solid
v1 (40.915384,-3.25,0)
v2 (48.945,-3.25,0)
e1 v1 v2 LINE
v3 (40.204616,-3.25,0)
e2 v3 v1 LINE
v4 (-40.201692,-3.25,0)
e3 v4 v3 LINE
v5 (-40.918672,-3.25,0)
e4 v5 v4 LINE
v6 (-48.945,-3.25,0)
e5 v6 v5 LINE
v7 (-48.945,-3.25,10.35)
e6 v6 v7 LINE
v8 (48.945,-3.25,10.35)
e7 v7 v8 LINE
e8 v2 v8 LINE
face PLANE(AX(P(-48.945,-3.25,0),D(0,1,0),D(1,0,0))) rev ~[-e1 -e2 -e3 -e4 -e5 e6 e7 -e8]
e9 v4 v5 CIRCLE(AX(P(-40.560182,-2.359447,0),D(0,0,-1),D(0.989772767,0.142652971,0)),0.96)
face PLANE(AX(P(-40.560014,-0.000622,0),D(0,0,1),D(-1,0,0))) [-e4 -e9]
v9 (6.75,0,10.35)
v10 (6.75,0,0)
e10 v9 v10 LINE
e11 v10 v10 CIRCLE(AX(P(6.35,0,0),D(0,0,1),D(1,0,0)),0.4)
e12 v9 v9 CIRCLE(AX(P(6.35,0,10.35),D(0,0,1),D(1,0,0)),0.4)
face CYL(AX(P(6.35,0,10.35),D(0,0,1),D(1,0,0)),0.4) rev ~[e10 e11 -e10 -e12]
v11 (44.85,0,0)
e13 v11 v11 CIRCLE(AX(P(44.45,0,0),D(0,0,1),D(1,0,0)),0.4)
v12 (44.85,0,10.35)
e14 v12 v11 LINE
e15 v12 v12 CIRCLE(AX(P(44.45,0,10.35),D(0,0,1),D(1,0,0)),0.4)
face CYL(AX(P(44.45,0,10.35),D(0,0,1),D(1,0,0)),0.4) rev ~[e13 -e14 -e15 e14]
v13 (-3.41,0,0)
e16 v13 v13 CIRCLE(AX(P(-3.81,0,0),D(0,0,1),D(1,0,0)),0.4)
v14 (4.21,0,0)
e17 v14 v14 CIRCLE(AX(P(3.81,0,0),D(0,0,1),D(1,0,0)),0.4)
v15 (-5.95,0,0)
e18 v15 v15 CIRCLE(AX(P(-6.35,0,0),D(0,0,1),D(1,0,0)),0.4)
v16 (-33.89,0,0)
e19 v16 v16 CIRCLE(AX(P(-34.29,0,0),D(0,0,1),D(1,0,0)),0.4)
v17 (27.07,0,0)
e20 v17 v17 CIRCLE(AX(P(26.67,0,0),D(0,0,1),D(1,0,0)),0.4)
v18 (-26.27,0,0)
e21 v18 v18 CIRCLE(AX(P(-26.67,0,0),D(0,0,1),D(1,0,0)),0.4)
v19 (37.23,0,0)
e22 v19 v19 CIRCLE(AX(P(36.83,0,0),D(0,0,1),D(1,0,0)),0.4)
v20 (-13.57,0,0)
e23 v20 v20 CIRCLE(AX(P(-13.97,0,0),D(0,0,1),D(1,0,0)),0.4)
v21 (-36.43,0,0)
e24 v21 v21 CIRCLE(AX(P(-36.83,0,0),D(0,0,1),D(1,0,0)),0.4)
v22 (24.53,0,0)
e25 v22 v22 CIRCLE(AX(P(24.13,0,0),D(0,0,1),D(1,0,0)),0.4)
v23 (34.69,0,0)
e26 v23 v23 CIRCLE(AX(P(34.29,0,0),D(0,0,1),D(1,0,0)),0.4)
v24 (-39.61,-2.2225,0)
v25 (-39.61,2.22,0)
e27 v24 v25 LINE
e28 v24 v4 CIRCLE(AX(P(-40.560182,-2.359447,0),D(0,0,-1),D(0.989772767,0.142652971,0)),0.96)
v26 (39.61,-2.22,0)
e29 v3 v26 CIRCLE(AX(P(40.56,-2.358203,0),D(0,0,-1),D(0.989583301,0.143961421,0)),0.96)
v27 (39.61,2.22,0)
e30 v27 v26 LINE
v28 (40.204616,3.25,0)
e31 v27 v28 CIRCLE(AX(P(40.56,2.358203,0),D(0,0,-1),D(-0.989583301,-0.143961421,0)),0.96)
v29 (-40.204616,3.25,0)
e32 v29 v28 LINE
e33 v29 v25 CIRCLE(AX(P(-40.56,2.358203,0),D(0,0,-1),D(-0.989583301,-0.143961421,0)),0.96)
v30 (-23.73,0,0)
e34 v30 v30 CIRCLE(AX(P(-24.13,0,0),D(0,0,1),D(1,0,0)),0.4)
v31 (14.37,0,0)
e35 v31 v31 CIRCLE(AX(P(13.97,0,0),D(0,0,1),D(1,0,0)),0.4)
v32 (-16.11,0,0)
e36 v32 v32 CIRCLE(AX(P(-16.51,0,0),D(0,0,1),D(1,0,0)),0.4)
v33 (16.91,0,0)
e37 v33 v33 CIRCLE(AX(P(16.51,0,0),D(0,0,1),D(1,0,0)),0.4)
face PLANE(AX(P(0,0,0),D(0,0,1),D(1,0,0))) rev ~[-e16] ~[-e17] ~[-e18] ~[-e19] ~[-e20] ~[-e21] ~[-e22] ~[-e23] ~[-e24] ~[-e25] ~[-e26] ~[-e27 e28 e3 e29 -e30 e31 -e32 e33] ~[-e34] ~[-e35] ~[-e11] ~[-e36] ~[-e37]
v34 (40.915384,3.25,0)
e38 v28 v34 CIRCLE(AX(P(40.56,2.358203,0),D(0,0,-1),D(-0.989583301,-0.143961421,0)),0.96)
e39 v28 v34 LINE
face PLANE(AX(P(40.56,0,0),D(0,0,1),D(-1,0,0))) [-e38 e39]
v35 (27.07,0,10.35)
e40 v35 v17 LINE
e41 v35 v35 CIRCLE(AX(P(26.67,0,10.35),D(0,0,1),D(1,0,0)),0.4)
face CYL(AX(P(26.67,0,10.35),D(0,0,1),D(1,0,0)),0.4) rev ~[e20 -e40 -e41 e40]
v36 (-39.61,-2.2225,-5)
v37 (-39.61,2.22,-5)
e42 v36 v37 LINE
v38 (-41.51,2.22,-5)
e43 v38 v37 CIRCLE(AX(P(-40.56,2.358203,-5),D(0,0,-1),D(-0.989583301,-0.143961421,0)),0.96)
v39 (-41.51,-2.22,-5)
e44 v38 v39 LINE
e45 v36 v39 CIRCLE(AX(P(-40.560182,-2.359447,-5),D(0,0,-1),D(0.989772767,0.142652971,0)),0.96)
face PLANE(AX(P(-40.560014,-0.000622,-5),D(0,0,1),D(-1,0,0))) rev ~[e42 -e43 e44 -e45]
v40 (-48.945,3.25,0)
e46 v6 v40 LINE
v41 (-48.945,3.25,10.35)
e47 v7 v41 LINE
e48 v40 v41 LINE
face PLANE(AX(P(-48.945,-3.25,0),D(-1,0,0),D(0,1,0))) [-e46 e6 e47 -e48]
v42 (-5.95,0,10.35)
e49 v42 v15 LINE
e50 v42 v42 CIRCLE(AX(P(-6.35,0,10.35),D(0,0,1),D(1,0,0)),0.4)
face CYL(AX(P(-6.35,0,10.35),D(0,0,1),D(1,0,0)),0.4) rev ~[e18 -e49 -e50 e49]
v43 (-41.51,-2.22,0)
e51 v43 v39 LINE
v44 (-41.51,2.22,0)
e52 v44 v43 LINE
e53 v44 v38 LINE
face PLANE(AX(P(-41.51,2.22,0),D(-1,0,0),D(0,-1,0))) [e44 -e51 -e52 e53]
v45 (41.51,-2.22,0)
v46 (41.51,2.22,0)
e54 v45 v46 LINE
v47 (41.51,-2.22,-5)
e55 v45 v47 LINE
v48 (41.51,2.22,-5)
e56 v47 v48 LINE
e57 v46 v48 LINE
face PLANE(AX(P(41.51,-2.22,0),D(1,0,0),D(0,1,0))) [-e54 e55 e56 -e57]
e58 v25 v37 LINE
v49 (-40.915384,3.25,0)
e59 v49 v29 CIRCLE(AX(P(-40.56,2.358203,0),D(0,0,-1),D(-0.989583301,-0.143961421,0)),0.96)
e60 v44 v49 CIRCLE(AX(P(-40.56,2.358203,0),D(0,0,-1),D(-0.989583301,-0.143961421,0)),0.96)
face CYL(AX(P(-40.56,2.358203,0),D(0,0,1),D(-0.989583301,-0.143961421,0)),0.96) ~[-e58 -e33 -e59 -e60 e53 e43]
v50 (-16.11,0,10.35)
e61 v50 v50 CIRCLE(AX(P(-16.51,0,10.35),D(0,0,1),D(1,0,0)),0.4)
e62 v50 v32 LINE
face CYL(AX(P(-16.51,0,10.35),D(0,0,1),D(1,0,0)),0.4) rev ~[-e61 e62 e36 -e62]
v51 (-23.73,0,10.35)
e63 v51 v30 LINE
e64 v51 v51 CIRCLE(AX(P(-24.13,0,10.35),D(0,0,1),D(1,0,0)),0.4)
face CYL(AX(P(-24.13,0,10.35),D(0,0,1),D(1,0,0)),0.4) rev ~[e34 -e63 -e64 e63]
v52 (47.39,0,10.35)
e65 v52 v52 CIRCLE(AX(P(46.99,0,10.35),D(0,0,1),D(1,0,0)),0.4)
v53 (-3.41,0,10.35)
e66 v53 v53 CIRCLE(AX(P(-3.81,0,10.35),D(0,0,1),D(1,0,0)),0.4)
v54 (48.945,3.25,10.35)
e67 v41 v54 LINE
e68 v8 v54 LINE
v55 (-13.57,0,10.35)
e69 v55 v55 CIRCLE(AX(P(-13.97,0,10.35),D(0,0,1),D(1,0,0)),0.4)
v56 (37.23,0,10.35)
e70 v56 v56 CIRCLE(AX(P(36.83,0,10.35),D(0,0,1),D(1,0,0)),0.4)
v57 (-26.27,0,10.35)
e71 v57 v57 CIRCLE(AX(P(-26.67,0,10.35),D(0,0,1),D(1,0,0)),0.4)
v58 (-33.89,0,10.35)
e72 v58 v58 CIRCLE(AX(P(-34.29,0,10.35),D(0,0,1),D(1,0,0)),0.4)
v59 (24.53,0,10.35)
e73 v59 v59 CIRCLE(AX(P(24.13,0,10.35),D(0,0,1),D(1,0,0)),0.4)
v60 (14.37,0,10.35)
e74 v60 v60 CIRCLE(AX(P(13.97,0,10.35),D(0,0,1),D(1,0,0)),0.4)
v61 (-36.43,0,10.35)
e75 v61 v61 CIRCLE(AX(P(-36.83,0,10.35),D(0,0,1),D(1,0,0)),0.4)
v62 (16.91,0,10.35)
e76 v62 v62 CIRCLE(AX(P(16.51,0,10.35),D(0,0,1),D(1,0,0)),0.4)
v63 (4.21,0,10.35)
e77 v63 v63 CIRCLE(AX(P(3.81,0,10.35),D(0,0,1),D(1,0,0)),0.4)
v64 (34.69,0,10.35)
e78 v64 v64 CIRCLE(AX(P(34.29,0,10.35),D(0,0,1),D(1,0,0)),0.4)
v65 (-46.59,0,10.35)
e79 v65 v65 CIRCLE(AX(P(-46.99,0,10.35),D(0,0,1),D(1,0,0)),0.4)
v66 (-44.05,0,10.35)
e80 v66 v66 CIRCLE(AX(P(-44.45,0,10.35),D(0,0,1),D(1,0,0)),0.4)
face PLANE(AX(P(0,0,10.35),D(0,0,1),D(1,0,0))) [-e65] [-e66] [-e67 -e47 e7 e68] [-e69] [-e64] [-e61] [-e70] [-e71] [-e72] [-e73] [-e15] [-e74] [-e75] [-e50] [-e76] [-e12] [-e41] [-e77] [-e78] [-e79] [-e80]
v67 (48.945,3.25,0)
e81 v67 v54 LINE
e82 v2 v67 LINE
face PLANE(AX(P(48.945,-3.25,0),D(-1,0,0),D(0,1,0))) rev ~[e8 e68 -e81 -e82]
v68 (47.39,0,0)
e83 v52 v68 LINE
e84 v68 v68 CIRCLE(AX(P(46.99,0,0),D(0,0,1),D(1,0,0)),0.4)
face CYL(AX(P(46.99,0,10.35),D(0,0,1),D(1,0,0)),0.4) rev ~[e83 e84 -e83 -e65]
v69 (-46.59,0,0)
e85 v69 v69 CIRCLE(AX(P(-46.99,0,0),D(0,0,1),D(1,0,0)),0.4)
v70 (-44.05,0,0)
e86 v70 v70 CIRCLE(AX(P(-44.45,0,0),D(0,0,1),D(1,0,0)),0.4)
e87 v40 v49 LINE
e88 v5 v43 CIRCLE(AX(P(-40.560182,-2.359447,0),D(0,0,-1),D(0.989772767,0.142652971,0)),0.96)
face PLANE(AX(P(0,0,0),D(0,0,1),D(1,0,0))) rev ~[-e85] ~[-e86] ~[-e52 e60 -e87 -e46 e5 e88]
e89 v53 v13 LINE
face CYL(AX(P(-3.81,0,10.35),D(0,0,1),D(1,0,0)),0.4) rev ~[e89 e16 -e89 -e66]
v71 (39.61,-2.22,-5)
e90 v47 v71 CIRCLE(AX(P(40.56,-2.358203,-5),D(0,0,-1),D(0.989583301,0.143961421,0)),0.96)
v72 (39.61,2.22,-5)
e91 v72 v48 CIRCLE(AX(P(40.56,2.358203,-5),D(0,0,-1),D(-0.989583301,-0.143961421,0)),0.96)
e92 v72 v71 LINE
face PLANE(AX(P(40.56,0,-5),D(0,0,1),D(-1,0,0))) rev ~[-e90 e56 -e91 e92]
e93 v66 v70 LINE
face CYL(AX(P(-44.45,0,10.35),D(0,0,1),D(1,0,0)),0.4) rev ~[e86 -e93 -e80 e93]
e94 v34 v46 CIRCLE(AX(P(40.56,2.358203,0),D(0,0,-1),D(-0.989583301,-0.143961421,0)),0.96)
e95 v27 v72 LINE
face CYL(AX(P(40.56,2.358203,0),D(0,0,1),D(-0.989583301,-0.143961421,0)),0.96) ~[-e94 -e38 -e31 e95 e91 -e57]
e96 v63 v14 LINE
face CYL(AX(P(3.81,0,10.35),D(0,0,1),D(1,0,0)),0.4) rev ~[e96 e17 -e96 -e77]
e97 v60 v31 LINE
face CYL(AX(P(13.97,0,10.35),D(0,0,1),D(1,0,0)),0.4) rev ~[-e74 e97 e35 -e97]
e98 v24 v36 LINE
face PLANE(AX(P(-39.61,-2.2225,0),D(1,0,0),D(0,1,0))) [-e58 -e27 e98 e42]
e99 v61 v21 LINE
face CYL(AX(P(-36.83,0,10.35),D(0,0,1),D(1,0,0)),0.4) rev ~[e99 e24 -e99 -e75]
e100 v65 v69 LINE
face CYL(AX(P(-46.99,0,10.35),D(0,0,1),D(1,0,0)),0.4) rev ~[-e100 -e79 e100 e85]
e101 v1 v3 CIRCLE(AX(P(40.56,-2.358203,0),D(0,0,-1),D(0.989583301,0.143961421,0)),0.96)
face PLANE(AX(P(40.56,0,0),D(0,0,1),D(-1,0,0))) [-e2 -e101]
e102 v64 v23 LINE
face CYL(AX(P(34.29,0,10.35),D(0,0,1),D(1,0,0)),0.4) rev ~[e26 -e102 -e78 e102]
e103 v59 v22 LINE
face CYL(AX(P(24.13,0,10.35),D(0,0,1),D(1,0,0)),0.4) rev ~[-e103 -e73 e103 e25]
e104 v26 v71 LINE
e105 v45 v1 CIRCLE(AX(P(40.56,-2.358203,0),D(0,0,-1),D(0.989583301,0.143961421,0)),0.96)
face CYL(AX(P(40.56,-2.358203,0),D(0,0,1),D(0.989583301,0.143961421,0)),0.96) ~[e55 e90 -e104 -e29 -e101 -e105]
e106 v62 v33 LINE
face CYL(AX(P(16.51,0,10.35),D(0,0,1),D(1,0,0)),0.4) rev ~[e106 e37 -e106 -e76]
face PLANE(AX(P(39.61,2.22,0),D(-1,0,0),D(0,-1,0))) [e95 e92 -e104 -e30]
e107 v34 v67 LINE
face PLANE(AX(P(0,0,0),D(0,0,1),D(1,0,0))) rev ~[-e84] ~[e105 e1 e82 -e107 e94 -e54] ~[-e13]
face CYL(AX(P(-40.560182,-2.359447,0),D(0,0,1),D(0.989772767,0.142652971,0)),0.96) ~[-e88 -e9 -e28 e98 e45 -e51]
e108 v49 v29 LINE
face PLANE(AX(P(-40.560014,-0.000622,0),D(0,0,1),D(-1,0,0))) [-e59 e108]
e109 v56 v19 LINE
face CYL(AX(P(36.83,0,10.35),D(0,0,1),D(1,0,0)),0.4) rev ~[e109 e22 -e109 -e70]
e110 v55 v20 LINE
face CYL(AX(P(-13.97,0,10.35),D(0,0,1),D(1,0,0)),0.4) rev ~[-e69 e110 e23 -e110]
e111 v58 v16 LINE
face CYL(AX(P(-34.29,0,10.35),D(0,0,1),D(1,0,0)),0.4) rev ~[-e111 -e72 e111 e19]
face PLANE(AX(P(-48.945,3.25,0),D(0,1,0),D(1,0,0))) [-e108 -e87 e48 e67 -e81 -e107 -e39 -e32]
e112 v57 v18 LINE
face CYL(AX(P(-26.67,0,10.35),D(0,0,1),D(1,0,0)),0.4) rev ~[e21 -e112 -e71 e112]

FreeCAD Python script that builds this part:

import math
import FreeCAD as App
import Part
import Sketcher
from FreeCAD import Vector


def add_polygon(sketch, points):
    """Adds a closed chain of lines whose ends are joined by coincident constraints."""
    first, n = sketch.GeometryCount, len(points)
    for a, b in zip(points, points[1:] + points[:1]):
        sketch.addGeometry(Part.LineSegment(App.Vector(*a, 0), App.Vector(*b, 0)), False)
    for i in range(n):
        sketch.addConstraint(Sketcher.Constraint("Coincident", first + i, 2, first + (i + 1) % n, 1))

doc = App.newDocument("Part")
params = doc.addObject("Spreadsheet::Sheet", "Params")
for row, (alias, value) in enumerate([
    ("sketch1_height", "6.5 mm"),
    ("sketch1_width", "97.89 mm"),
    ("pad1_length", "10.35 mm"),
    ("sketch2_diameter", "0.8 mm"),
    ("pocket1_length", "70 mm"),
    ("sketch3_radius", "0.96 mm"),
    ("sketch3_height", "4.44 mm"),
    ("pad2_length", "5 mm"),
], start=1):
    params.set(f"A{row}", alias)
    params.set(f"B{row}", "=" + value)
    params.setAlias(f"B{row}", alias)

body = doc.addObject("PartDesign::Body", "Body")

# Sketch on XY plane
sketch1 = body.newObject("Sketcher::SketchObject", "Sketch")
sketch1.AttachmentSupport = (doc.getObject("XY_Plane"), [""])
sketch1.MapMode = "FlatFace"
add_polygon(sketch1, [(-49, 3), (-49, -3), (49, -3), (49, 3)])  # lines 0-3
sketch1.addConstraint(Sketcher.Constraint("Vertical", 0))
sketch1.addConstraint(Sketcher.Constraint("Horizontal", 1))
sketch1.addConstraint(Sketcher.Constraint("Vertical", 2))
sketch1.addConstraint(Sketcher.Constraint("Horizontal", 3))
sketch1.addConstraint(Sketcher.Constraint("Symmetric", 0, 2, 2, 2, -1, 1))
sketch1.addConstraint(Sketcher.Constraint("DistanceY", 0, 2, 0, 1, 6.5))
sketch1.addConstraint(Sketcher.Constraint("DistanceX", 1, 1, 1, 2, 97.89))
sketch1.setExpression("Constraints[9]", "Params.sketch1_height")
sketch1.setExpression("Constraints[10]", "Params.sketch1_width")
pad1 = body.newObject("PartDesign::Pad", "Pad")
pad1.Profile = sketch1
pad1.setExpression("Length", "Params.pad1_length")

# Sketch on XY plane
sketch2 = body.newObject("Sketcher::SketchObject", "Sketch001")
sketch2.AttachmentSupport = (doc.getObject("XY_Plane"), [""])
sketch2.MapMode = "FlatFace"
sketch2.AttachmentOffset = App.Placement(Vector(0, 0, 10.35), App.Rotation())
sketch2.addGeometry(Part.Circle(Vector(3.81, 0, 0), Vector(0, 0, 1), 0.4), False)
sketch2.addGeometry(Part.Circle(Vector(6.35, 0, 0), Vector(0, 0, 1), 0.4), False)
sketch2.addGeometry(Part.Circle(Vector(-16.51, 0, 0), Vector(0, 0, 1), 0.4), False)
sketch2.addGeometry(Part.Circle(Vector(-13.97, 0, 0), Vector(0, 0, 1), 0.4), False)
sketch2.addGeometry(Part.Circle(Vector(-34.29, 0, 0), Vector(0, 0, 1), 0.4), False)
sketch2.addGeometry(Part.Circle(Vector(-36.83, 0, 0), Vector(0, 0, 1), 0.4), False)
sketch2.addGeometry(Part.Circle(Vector(13.97, 0, 0), Vector(0, 0, 1), 0.4), False)
sketch2.addGeometry(Part.Circle(Vector(16.51, 0, 0), Vector(0, 0, 1), 0.4), False)
sketch2.addGeometry(Part.Circle(Vector(24.13, 0, 0), Vector(0, 0, 1), 0.4), False)
sketch2.addGeometry(Part.Circle(Vector(26.67, 0, 0), Vector(0, 0, 1), 0.4), False)
sketch2.addGeometry(Part.Circle(Vector(34.29, 0, 0), Vector(0, 0, 1), 0.4), False)
sketch2.addGeometry(Part.Circle(Vector(36.83, 0, 0), Vector(0, 0, 1), 0.4), False)
sketch2.addGeometry(Part.Circle(Vector(44.45, 0, 0), Vector(0, 0, 1), 0.4), False)
sketch2.addGeometry(Part.Circle(Vector(46.99, 0, 0), Vector(0, 0, 1), 0.4), False)
sketch2.addGeometry(Part.Circle(Vector(-46.99, 0, 0), Vector(0, 0, 1), 0.4), False)
sketch2.addGeometry(Part.Circle(Vector(-44.45, 0, 0), Vector(0, 0, 1), 0.4), False)
sketch2.addGeometry(Part.Circle(Vector(-26.67, 0, 0), Vector(0, 0, 1), 0.4), False)
sketch2.addGeometry(Part.Circle(Vector(-24.13, 0, 0), Vector(0, 0, 1), 0.4), False)
sketch2.addGeometry(Part.Circle(Vector(-6.35, 0, 0), Vector(0, 0, 1), 0.4), False)
sketch2.addGeometry(Part.Circle(Vector(-3.81, 0, 0), Vector(0, 0, 1), 0.4), False)
sketch2.addConstraint(Sketcher.Constraint("Equal", 0, 1))
sketch2.addConstraint(Sketcher.Constraint("Equal", 1, 2))
sketch2.addConstraint(Sketcher.Constraint("Equal", 2, 3))
sketch2.addConstraint(Sketcher.Constraint("Equal", 3, 4))
sketch2.addConstraint(Sketcher.Constraint("Equal", 4, 5))
sketch2.addConstraint(Sketcher.Constraint("Equal", 5, 6))
sketch2.addConstraint(Sketcher.Constraint("Equal", 6, 7))
sketch2.addConstraint(Sketcher.Constraint("Equal", 7, 8))
sketch2.addConstraint(Sketcher.Constraint("Equal", 8, 9))
sketch2.addConstraint(Sketcher.Constraint("Equal", 9, 10))
sketch2.addConstraint(Sketcher.Constraint("Equal", 10, 11))
sketch2.addConstraint(Sketcher.Constraint("Equal", 11, 12))
sketch2.addConstraint(Sketcher.Constraint("Equal", 12, 13))
sketch2.addConstraint(Sketcher.Constraint("Equal", 13, 14))
sketch2.addConstraint(Sketcher.Constraint("Equal", 14, 15))
sketch2.addConstraint(Sketcher.Constraint("Equal", 15, 16))
sketch2.addConstraint(Sketcher.Constraint("Equal", 16, 17))
sketch2.addConstraint(Sketcher.Constraint("Equal", 17, 18))
sketch2.addConstraint(Sketcher.Constraint("Equal", 18, 19))
sketch2.addConstraint(Sketcher.Constraint("Symmetric", 3, 3, 6, 3, -1, 1))
sketch2.addConstraint(Sketcher.Constraint("Symmetric", 2, 3, 7, 3, -1, 1))
sketch2.addConstraint(Sketcher.Constraint("Symmetric", 4, 3, 10, 3, -1, 1))
sketch2.addConstraint(Sketcher.Constraint("Symmetric", 5, 3, 11, 3, -1, 1))
sketch2.addConstraint(Sketcher.Constraint("Symmetric", 13, 3, 14, 3, -1, 1))
sketch2.addConstraint(Sketcher.Constraint("Symmetric", 12, 3, 15, 3, -1, 1))
sketch2.addConstraint(Sketcher.Constraint("Symmetric", 9, 3, 16, 3, -1, 1))
sketch2.addConstraint(Sketcher.Constraint("Symmetric", 8, 3, 17, 3, -1, 1))
sketch2.addConstraint(Sketcher.Constraint("Symmetric", 1, 3, 18, 3, -1, 1))
sketch2.addConstraint(Sketcher.Constraint("Symmetric", 0, 3, 19, 3, -1, 1))
sketch2.addConstraint(Sketcher.Constraint("PointOnObject", 0, 3, -1))
sketch2.addConstraint(Sketcher.Constraint("PointOnObject", 1, 3, -1))
sketch2.addConstraint(Sketcher.Constraint("PointOnObject", 2, 3, -1))
sketch2.addConstraint(Sketcher.Constraint("PointOnObject", 3, 3, -1))
sketch2.addConstraint(Sketcher.Constraint("PointOnObject", 4, 3, -1))
sketch2.addConstraint(Sketcher.Constraint("PointOnObject", 5, 3, -1))
sketch2.addConstraint(Sketcher.Constraint("PointOnObject", 8, 3, -1))
sketch2.addConstraint(Sketcher.Constraint("PointOnObject", 9, 3, -1))
sketch2.addConstraint(Sketcher.Constraint("PointOnObject", 12, 3, -1))
sketch2.addConstraint(Sketcher.Constraint("PointOnObject", 13, 3, -1))
sketch2.addConstraint(Sketcher.Constraint("Diameter", 0, 0.8))
sketch2.addConstraint(Sketcher.Constraint("DistanceX", 4, 3, 0, 3, 38.1))
sketch2.addConstraint(Sketcher.Constraint("DistanceX", 0, 3, 7, 3, 12.7))
sketch2.addConstraint(Sketcher.Constraint("DistanceX", 3, 3, 8, 3, 38.1))
sketch2.addConstraint(Sketcher.Constraint("DistanceX", 6, 3, 9, 3, 12.7))
sketch2.addConstraint(Sketcher.Constraint("DistanceX", 8, 3, 11, 3, 12.7))
sketch2.addConstraint(Sketcher.Constraint("DistanceX", 10, 3, 13, 3, 12.7))
sketch2.addConstraint(Sketcher.Constraint("DistanceX", 18, 3, 1, 3, 12.7))
sketch2.addConstraint(Sketcher.Constraint("DistanceX", -1, 1, 0, 3, 3.81))
sketch2.addConstraint(Sketcher.Constraint("DistanceX", 3, 3, -1, 1, 13.97))
sketch2.addConstraint(Sketcher.Constraint("DistanceX", -1, 1, 12, 3, 44.45))
sketch2.setExpression("Constraints[39]", "Params.sketch2_diameter")
pocket1 = body.newObject("PartDesign::Pocket", "Pocket")
pocket1.Profile = sketch2
pocket1.setExpression("Length", "Params.pocket1_length")

# Sketch on XY plane
sketch3 = body.newObject("Sketcher::SketchObject", "Sketch002")
sketch3.AttachmentSupport = (doc.getObject("XY_Plane"), [""])
sketch3.MapMode = "FlatFace"
sketch3.addGeometry(Part.LineSegment(Vector(-39.6, 2.2, 0), Vector(-39.6, -2.2, 0)), False)
sketch3.addGeometry(Part.ArcOfCircle(Part.Circle(Vector(-40.6, -2.4, 0), Vector(0, 0, 1), 1), math.radians(172), math.radians(368)), False)
sketch3.addGeometry(Part.LineSegment(Vector(-41.5, -2.2, 0), Vector(-41.5, 2.2, 0)), False)
sketch3.addGeometry(Part.ArcOfCircle(Part.Circle(Vector(-40.6, 2.4, 0), Vector(0, 0, 1), 1), math.radians(-8), math.radians(188)), False)
sketch3.addGeometry(Part.LineSegment(Vector(41.5, 2.2, 0), Vector(41.5, -2.2, 0)), False)
sketch3.addGeometry(Part.ArcOfCircle(Part.Circle(Vector(40.6, -2.4, 0), Vector(0, 0, 1), 1), math.radians(172), math.radians(368)), False)
sketch3.addGeometry(Part.LineSegment(Vector(39.6, -2.2, 0), Vector(39.6, 2.2, 0)), False)
sketch3.addGeometry(Part.ArcOfCircle(Part.Circle(Vector(40.6, 2.4, 0), Vector(0, 0, 1), 1), math.radians(-8), math.radians(188)), False)
sketch3.addConstraint(Sketcher.Constraint("Coincident", 0, 2, 1, 2))
sketch3.addConstraint(Sketcher.Constraint("Coincident", 1, 1, 2, 1))
sketch3.addConstraint(Sketcher.Constraint("Coincident", 2, 2, 3, 2))
sketch3.addConstraint(Sketcher.Constraint("Coincident", 3, 1, 0, 1))
sketch3.addConstraint(Sketcher.Constraint("Coincident", 4, 2, 5, 2))
sketch3.addConstraint(Sketcher.Constraint("Coincident", 5, 1, 6, 1))
sketch3.addConstraint(Sketcher.Constraint("Coincident", 6, 2, 7, 2))
sketch3.addConstraint(Sketcher.Constraint("Coincident", 7, 1, 4, 1))
sketch3.addConstraint(Sketcher.Constraint("Vertical", 0))
sketch3.addConstraint(Sketcher.Constraint("Vertical", 2))
sketch3.addConstraint(Sketcher.Constraint("Vertical", 4))
sketch3.addConstraint(Sketcher.Constraint("Vertical", 6))
sketch3.addConstraint(Sketcher.Constraint("Equal", 1, 3))
sketch3.addConstraint(Sketcher.Constraint("Equal", 3, 5))
sketch3.addConstraint(Sketcher.Constraint("Equal", 5, 7))
sketch3.addConstraint(Sketcher.Constraint("Symmetric", 3, 3, 5, 3, -1, 1))
sketch3.addConstraint(Sketcher.Constraint("Symmetric", 1, 1, 7, 1, -1, 1))
sketch3.addConstraint(Sketcher.Constraint("Symmetric", 3, 3, 7, 3, -2))
sketch3.addConstraint(Sketcher.Constraint("Horizontal", 2, 2, 3, 1))
sketch3.addConstraint(Sketcher.Constraint("Horizontal", 4, 2, 5, 1))
sketch3.addConstraint(Sketcher.Constraint("Radius", 1, 0.96))
sketch3.addConstraint(Sketcher.Constraint("DistanceY", 2, 1, 2, 2, 4.44))
sketch3.addConstraint(Sketcher.Constraint("DistanceX", 1, 1, 0, 2, 1.9))
sketch3.addConstraint(Sketcher.Constraint("DistanceX", 3, 3, -1, 1, 40.56))
sketch3.addConstraint(Sketcher.Constraint("DistanceY", 0, 2, 0, 1, 4.4425))
sketch3.setExpression("Constraints[20]", "Params.sketch3_radius")
sketch3.setExpression("Constraints[21]", "Params.sketch3_height")
pad2 = body.newObject("PartDesign::Pad", "Pad001")
pad2.Profile = sketch3
pad2.setExpression("Length", "Params.pad2_length")
pad2.Reversed = True

doc.recompute()
